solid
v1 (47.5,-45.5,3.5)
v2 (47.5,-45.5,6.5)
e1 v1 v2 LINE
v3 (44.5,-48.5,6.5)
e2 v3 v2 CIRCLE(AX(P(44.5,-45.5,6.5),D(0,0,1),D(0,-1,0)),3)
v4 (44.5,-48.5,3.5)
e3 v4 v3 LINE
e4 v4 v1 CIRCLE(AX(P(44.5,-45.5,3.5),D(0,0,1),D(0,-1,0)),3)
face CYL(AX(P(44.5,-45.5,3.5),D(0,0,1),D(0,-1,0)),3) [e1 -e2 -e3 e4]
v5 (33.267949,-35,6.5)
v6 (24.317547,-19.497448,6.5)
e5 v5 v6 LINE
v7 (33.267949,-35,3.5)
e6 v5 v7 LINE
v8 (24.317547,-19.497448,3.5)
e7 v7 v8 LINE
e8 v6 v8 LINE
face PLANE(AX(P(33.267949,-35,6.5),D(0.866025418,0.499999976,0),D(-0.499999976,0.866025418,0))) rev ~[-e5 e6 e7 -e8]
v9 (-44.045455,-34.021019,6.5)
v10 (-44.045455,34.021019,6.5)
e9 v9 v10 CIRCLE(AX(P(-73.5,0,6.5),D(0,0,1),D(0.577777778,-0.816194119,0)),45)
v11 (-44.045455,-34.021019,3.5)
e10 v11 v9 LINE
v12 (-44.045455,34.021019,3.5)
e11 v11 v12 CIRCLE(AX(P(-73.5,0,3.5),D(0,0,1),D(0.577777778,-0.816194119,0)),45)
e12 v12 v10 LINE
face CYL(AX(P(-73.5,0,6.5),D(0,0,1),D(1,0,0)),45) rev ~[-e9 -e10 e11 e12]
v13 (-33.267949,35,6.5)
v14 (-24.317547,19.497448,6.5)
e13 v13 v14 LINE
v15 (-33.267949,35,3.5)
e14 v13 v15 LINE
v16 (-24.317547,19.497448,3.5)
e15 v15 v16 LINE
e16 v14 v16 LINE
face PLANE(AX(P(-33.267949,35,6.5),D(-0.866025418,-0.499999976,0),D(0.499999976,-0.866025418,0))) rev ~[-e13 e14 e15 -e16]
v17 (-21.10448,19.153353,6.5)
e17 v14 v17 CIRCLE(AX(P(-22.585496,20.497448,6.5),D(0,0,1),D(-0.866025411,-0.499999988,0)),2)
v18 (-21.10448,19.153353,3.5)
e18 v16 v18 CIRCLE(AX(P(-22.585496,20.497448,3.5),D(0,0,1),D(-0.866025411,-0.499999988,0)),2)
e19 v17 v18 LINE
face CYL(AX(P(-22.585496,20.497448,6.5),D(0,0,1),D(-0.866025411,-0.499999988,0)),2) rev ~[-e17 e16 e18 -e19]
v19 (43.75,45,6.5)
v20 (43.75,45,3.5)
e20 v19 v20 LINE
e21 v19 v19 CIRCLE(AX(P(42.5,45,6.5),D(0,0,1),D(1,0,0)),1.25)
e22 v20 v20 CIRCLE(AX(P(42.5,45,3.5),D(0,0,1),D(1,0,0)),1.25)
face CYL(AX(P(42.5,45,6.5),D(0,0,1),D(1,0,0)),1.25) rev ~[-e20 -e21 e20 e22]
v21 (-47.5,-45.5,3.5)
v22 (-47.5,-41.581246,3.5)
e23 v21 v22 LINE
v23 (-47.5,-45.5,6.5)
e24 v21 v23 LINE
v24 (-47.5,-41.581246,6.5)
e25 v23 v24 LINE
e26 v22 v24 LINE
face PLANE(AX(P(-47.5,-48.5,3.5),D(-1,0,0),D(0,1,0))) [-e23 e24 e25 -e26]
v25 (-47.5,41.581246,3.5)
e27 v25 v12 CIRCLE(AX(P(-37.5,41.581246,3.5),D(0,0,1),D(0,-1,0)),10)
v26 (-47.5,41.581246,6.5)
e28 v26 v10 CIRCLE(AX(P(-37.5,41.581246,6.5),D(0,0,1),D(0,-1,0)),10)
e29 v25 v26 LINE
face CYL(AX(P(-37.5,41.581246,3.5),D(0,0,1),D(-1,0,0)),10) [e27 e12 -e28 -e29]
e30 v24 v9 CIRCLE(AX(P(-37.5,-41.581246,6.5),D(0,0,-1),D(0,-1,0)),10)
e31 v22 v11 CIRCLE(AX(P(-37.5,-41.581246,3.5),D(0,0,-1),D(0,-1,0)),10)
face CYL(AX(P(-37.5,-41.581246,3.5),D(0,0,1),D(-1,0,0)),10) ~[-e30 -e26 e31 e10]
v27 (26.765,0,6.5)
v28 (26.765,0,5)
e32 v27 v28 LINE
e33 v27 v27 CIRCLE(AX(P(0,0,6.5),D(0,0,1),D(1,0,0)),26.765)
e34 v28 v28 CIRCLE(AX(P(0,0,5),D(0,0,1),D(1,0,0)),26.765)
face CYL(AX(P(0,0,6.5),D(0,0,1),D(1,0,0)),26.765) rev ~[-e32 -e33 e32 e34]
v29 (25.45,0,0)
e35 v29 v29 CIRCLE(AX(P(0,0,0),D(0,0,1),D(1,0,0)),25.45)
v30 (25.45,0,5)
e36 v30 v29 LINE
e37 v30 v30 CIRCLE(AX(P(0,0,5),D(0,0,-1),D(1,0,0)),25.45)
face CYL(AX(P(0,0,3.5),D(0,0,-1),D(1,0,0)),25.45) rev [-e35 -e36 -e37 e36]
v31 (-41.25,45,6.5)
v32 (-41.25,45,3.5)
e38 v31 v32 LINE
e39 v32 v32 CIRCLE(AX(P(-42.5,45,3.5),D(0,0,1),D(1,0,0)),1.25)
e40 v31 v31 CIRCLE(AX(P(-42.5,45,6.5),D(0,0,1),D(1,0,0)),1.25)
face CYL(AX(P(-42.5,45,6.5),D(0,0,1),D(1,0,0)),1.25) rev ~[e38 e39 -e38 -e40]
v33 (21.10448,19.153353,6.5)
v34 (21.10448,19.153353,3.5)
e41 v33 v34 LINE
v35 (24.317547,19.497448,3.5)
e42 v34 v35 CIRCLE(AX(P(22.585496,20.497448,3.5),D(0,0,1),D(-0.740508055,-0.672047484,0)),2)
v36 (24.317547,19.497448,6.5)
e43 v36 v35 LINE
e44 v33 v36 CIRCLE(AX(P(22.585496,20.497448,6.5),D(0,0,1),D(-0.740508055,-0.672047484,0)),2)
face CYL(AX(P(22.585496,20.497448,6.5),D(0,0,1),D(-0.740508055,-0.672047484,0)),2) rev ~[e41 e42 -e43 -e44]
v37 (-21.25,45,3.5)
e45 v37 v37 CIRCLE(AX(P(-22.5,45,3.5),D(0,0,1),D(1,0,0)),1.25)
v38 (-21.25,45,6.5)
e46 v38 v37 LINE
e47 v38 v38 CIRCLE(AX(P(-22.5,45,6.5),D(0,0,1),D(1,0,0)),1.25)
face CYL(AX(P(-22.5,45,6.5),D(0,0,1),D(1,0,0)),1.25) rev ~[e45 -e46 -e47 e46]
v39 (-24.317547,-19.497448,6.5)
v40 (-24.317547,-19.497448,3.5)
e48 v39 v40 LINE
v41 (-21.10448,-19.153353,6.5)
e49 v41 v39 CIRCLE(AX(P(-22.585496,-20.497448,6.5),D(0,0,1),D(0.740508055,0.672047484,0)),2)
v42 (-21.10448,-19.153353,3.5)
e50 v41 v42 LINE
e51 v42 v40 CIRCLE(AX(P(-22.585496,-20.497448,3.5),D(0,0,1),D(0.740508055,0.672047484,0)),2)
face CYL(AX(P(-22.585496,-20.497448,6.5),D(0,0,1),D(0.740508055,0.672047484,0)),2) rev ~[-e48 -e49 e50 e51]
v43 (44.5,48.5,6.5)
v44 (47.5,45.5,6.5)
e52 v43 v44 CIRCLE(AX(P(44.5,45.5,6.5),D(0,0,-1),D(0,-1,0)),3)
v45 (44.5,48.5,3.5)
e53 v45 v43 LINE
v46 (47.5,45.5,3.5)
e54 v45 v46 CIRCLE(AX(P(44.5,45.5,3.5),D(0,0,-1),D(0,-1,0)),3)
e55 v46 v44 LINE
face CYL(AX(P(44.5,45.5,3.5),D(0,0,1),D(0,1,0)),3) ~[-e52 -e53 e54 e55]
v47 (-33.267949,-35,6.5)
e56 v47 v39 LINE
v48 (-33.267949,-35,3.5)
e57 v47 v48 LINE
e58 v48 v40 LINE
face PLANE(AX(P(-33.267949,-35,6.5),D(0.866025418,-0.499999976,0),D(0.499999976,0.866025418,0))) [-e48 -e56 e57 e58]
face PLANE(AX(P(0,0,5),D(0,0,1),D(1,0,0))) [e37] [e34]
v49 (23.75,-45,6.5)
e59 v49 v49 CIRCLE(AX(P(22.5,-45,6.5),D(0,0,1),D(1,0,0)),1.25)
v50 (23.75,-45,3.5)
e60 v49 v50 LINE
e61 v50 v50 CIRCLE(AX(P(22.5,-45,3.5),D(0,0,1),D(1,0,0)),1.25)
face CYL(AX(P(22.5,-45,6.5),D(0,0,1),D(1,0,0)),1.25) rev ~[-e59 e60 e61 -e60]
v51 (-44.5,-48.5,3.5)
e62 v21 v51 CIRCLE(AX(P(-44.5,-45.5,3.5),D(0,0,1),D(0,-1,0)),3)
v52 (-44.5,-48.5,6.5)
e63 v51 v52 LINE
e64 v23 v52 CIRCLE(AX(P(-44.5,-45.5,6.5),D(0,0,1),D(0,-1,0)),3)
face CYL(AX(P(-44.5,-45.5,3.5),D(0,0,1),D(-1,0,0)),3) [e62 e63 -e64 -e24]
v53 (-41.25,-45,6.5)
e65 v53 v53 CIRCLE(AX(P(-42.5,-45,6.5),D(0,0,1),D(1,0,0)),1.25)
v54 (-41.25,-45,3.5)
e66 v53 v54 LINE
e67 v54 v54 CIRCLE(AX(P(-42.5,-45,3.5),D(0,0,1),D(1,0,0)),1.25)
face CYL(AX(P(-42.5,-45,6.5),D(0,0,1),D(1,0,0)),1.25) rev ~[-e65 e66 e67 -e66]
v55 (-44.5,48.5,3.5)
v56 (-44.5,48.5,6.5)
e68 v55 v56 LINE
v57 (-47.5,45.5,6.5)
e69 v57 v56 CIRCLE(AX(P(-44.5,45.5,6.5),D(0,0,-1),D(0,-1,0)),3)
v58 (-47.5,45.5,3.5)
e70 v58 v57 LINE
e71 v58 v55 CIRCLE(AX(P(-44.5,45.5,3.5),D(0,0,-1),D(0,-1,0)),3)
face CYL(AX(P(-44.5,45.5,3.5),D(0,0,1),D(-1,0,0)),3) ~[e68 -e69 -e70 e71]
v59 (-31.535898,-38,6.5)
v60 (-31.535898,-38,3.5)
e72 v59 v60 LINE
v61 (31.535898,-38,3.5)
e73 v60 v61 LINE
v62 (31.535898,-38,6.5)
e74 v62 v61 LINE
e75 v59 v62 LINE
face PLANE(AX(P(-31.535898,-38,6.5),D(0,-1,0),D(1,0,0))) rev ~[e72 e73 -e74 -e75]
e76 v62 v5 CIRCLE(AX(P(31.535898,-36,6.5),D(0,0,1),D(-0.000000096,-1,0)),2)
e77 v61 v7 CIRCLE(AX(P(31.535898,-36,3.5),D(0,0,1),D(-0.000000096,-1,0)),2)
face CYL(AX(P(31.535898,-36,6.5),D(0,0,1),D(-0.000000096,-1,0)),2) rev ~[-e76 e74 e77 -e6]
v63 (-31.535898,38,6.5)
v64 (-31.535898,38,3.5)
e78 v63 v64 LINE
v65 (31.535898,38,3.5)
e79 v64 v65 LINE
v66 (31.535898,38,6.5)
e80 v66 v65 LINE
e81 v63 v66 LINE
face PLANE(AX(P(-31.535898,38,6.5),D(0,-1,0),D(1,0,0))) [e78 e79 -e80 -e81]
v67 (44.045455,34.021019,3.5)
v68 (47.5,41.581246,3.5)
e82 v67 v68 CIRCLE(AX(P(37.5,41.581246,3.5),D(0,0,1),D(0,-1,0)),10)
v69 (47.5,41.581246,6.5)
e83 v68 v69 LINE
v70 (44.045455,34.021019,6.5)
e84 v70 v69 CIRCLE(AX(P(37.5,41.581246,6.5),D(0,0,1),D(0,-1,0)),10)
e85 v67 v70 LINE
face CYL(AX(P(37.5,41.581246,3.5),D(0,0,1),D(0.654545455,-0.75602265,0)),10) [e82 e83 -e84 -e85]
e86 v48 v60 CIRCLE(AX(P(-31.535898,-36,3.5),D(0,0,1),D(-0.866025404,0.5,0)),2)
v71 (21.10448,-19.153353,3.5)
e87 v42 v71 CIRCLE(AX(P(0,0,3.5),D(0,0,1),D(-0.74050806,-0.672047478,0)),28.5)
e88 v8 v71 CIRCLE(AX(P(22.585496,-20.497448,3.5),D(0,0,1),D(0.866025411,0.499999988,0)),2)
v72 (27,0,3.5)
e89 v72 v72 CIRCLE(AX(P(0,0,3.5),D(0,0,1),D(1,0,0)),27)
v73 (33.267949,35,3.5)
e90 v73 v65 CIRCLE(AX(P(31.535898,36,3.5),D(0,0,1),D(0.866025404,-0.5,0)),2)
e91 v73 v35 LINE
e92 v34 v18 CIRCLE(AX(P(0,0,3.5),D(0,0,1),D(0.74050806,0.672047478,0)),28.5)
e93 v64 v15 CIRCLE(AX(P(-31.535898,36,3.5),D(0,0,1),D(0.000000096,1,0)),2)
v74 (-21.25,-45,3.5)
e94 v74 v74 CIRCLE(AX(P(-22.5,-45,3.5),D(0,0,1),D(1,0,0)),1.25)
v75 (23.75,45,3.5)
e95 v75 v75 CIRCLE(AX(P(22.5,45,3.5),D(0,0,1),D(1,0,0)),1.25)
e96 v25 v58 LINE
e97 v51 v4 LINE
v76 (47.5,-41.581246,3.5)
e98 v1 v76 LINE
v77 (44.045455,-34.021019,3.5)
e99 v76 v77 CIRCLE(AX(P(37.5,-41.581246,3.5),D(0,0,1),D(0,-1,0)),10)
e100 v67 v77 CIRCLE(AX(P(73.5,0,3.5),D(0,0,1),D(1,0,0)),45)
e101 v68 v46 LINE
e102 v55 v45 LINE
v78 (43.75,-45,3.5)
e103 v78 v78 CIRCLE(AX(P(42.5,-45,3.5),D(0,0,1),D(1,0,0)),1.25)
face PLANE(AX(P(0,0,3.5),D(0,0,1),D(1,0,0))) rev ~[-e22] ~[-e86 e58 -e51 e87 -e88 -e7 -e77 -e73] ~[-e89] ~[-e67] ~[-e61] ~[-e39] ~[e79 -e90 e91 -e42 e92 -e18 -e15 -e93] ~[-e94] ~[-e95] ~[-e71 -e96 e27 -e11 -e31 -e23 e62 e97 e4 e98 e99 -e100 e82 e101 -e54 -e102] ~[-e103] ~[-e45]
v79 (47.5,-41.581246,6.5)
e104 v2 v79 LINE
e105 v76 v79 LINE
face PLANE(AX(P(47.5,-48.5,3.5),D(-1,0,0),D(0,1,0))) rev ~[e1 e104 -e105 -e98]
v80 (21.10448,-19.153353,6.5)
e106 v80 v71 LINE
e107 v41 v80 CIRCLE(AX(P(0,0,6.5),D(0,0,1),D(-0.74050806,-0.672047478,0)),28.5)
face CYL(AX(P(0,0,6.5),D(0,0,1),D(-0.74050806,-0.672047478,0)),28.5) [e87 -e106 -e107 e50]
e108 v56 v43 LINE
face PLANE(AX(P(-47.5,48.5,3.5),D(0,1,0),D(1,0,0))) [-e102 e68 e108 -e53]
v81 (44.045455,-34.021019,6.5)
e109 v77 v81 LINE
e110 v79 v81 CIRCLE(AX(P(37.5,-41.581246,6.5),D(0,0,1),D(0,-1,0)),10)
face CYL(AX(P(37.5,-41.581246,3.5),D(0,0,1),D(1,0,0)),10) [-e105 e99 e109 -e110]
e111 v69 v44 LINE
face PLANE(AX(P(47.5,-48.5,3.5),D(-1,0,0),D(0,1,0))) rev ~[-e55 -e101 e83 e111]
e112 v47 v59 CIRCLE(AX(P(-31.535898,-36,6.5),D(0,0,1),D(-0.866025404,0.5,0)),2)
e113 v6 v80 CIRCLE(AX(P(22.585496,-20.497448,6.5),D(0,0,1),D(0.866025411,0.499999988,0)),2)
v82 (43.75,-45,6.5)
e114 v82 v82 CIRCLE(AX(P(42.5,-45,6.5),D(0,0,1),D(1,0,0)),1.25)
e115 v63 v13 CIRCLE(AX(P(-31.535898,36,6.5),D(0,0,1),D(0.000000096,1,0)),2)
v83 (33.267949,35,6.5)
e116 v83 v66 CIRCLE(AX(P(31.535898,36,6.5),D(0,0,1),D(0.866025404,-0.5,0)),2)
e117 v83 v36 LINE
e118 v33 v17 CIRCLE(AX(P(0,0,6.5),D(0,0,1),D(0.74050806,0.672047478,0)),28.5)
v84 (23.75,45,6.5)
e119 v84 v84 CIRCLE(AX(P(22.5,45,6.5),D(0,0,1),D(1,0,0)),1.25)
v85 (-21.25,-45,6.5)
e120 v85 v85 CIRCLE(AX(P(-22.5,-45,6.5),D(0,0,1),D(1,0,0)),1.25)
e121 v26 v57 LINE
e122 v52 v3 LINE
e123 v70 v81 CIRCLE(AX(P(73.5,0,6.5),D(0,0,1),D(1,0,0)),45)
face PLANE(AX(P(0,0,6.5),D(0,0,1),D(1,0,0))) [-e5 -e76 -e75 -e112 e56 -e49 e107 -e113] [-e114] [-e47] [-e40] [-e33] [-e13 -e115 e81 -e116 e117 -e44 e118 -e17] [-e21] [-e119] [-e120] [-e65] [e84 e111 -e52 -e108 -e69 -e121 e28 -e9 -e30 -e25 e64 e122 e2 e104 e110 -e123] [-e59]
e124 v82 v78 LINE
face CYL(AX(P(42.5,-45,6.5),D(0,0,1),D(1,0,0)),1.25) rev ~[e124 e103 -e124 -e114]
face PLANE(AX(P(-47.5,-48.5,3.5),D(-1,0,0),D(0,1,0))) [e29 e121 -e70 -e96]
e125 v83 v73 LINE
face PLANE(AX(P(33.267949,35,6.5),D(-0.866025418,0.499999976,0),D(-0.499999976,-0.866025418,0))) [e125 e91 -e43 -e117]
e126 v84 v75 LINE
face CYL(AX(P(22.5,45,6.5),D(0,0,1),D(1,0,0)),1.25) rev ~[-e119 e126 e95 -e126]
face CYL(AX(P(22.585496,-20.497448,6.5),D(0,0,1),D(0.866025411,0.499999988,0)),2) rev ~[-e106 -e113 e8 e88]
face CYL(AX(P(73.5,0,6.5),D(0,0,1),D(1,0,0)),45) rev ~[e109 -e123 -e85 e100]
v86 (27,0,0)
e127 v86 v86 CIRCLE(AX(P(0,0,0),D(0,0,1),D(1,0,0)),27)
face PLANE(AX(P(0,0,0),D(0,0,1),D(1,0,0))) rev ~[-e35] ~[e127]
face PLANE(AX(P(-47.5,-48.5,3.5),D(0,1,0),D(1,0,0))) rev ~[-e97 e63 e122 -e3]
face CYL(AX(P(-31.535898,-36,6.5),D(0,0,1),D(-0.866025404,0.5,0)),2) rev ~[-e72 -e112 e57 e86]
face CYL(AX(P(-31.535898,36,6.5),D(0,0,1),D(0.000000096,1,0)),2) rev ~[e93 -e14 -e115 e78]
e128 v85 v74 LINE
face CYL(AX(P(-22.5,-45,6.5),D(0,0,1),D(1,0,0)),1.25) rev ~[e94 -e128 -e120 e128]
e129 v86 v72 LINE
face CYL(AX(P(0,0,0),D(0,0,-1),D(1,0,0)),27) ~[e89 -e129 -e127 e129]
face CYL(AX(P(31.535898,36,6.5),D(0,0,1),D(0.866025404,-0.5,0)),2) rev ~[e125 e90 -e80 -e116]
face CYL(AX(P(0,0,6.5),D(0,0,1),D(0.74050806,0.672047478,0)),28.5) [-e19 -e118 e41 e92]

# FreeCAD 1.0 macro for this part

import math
import FreeCAD as App
import Part
import Sketcher

V = App.Vector
Q = App.Units.Quantity


def edges_at(feature, points):
    """Names of the edges that pass closest to the given points."""
    edges = feature.Shape.Edges
    near = lambda p: min(range(len(edges)), key=lambda i: edges[i].distToShape(Part.Vertex(*p))[0])
    return sorted({f"Edge{near(p) + 1}" for p in points})

doc = App.newDocument("Part")
body = doc.addObject("PartDesign::Body", "Body")

# Sketch on XY plane
sketch1 = body.newObject("Sketcher::SketchObject", "Sketch")
sketch1.AttachmentSupport = (doc.getObject("XY_Plane"), [""])
sketch1.MapMode = "FlatFace"
sketch1.addGeometry([
    Part.Circle(V(0, 0, 0), V(0, 0, 1), 27),
    Part.Circle(V(0, 0, 0), V(0, 0, 1), 25),
], False)
sketch1.addConstraint([
    Sketcher.Constraint("Coincident", 0, 3, -1, 1),
    Sketcher.Constraint("Coincident", 1, 3, -1, 1),
    Sketcher.Constraint("Diameter", 0, 54.0),
    Sketcher.Constraint("Diameter", 1, 50.9),
])
pad1 = body.newObject("PartDesign::Pad", "Pad")
pad1.Profile = sketch1
pad1.Length = 3.5

# Sketch on XY plane
sketch2 = body.newObject("Sketcher::SketchObject", "Sketch001")
sketch2.AttachmentSupport = (doc.getObject("XY_Plane"), [""])
sketch2.MapMode = "FlatFace"
sketch2.AttachmentOffset = App.Placement(V(0, 0, 3.5), App.Rotation())
sketch2.addGeometry([
    Part.LineSegment(V(-48, 48, 0), V(-48, -48, 0)),  # 0
    Part.LineSegment(V(-48, -48, 0), V(48, -48, 0)),  # 1
    Part.LineSegment(V(48, -48, 0), V(48, 48, 0)),  # 2
    Part.LineSegment(V(48, 48, 0), V(-48, 48, 0)),  # 3
    Part.Circle(V(0, 0, 0), V(0, 0, 1), 25),  # 4
], False)
sketch2.addConstraint([
    Sketcher.Constraint("Coincident", 0, 2, 1, 1),
    Sketcher.Constraint("Coincident", 1, 2, 2, 1),
    Sketcher.Constraint("Coincident", 2, 2, 3, 1),
    Sketcher.Constraint("Coincident", 3, 2, 0, 1),
    Sketcher.Constraint("Vertical", 0),
    Sketcher.Constraint("Horizontal", 1),
    Sketcher.Constraint("Vertical", 2),
    Sketcher.Constraint("Horizontal", 3),
    Sketcher.Constraint("Coincident", 4, 3, -1, 1),
    Sketcher.Constraint("Symmetric", 0, 2, 2, 2, -1, 1),
    Sketcher.Constraint("Diameter", 4, 50.9),
    Sketcher.Constraint("DistanceX", 1, 1, 1, 2, 95.0),
    Sketcher.Constraint("DistanceY", 0, 2, 0, 1, 97.0),
])
pad2 = body.newObject("PartDesign::Pad", "Pad001")
pad2.Profile = sketch2
pad2.Length = 3

# Sketch on XY plane
sketch3 = body.newObject("Sketcher::SketchObject", "Sketch002")
sketch3.AttachmentSupport = (doc.getObject("XY_Plane"), [""])
sketch3.MapMode = "FlatFace"
sketch3.AttachmentOffset = App.Placement(V(0, 0, 6.5), App.Rotation())
sketch3.addGeometry(Part.Circle(V(0, 0, 0), V(0, 0, 1), 27), False)
sketch3.addConstraint([
    Sketcher.Constraint("Coincident", 0, 3, -1, 1),
    Sketcher.Constraint("Diameter", 0, 53.53),
])
pocket1 = body.newObject("PartDesign::Pocket", "Pocket")
pocket1.Profile = sketch3
pocket1.Length = 1.5

# Sketch on XY plane
sketch4 = body.newObject("Sketcher::SketchObject", "Sketch003")
sketch4.AttachmentSupport = (doc.getObject("XY_Plane"), [""])
sketch4.MapMode = "FlatFace"
sketch4.AttachmentOffset = App.Placement(V(0, 0, 6.5), App.Rotation())
sketch4.addGeometry([
    Part.Circle(V(-42.5, 45, 0), V(0, 0, 1), 1.2),  # 0
    Part.Circle(V(42.5, 45, 0), V(0, 0, 1), 1.2),  # 1
    Part.Circle(V(42.5, -45, 0), V(0, 0, 1), 1.2),  # 2
    Part.Circle(V(-42.5, -45, 0), V(0, 0, 1), 1.2),  # 3
    Part.Circle(V(-22.5, 45, 0), V(0, 0, 1), 1.2),  # 4
    Part.Circle(V(22.5, 45, 0), V(0, 0, 1), 1.2),  # 5
    Part.Circle(V(-22.5, -45, 0), V(0, 0, 1), 1.2),  # 6
    Part.Circle(V(22.5, -45, 0), V(0, 0, 1), 1.2),  # 7
], False)
sketch4.addConstraint([
    Sketcher.Constraint("Equal", 0, 1),
    Sketcher.Constraint("Equal", 1, 2),
    Sketcher.Constraint("Equal", 2, 3),
    Sketcher.Constraint("Equal", 3, 4),
    Sketcher.Constraint("Equal", 4, 5),
    Sketcher.Constraint("Equal", 5, 6),
    Sketcher.Constraint("Equal", 6, 7),
    Sketcher.Constraint("Symmetric", 0, 3, 2, 3, -1, 1),
    Sketcher.Constraint("Symmetric", 1, 3, 3, 3, -1, 1),
    Sketcher.Constraint("Symmetric", 5, 3, 6, 3, -1, 1),
    Sketcher.Constraint("Symmetric", 4, 3, 7, 3, -1, 1),
    Sketcher.Constraint("Symmetric", 0, 3, 1, 3, -2),
    Sketcher.Constraint("Symmetric", 4, 3, 5, 3, -2),
    Sketcher.Constraint("Horizontal", 1, 3, 4, 3),
    Sketcher.Constraint("Diameter", 0, 2.5),
    Sketcher.Constraint("DistanceY", -1, 1, 0, 3, 45.0),
    Sketcher.Constraint("DistanceX", 0, 3, 1, 3, 85.0),
    Sketcher.Constraint("DistanceX", 0, 3, 4, 3, 20.0),
])
pocket2 = body.newObject("PartDesign::Pocket", "Pocket001")
pocket2.Profile = sketch4
pocket2.Type = "ThroughAll"

# Sketch on XY plane
sketch5 = body.newObject("Sketcher::SketchObject", "Sketch004")
sketch5.AttachmentSupport = (doc.getObject("XY_Plane"), [""])
sketch5.MapMode = "FlatFace"
sketch5.AttachmentOffset = App.Placement(V(0, 0, 6.5), App.Rotation())
sketch5.addGeometry([
    Part.Circle(V(-73.5, 0, 0), V(0, 0, 1), 45),  # 0
    Part.Circle(V(73.5, 0, 0), V(0, 0, 1), 45),  # 1
    Part.LineSegment(V(31.5, 38, 0), V(-31.5, 38, 0)),  # 2
    Part.ArcOfCircle(Part.Circle(V(-31.5, 36, 0), V(0, 0, 1), 2), math.radians(90), math.radians(210)),  # 3
    Part.LineSegment(V(-33.3, 35, 0), V(-24.3, 19.5, 0)),  # 4
    Part.ArcOfCircle(Part.Circle(V(-22.6, 20.5, 0), V(0, 0, 1), 2), math.radians(-150), math.radians(-42)),  # 5
    Part.ArcOfCircle(Part.Circle(V(0, 0, 0), V(0, 0, 1), 28.5), math.radians(42), math.radians(138)),  # 6
    Part.ArcOfCircle(Part.Circle(V(22.6, 20.5, 0), V(0, 0, 1), 2), math.radians(-138), math.radians(-30)),  # 7
    Part.LineSegment(V(24.3, 19.5, 0), V(33.3, 35, 0)),  # 8
    Part.ArcOfCircle(Part.Circle(V(31.5, 36, 0), V(0, 0, 1), 2), math.radians(-30), math.radians(90)),  # 9
    Part.LineSegment(V(-31.5, -38, 0), V(31.5, -38, 0)),  # 10
    Part.ArcOfCircle(Part.Circle(V(31.5, -36, 0), V(0, 0, 1), 2), math.radians(-90), math.radians(30)),  # 11
    Part.LineSegment(V(33.3, -35, 0), V(24.3, -19.5, 0)),  # 12
    Part.ArcOfCircle(Part.Circle(V(22.6, -20.5, 0), V(0, 0, 1), 2), math.radians(30), math.radians(138)),  # 13
    Part.ArcOfCircle(Part.Circle(V(0, 0, 0), V(0, 0, 1), 28.5), math.radians(-138), math.radians(-42)),  # 14
    Part.ArcOfCircle(Part.Circle(V(-22.6, -20.5, 0), V(0, 0, 1), 2), math.radians(42), math.radians(150)),  # 15
    Part.LineSegment(V(-24.3, -19.5, 0), V(-33.3, -35, 0)),  # 16
    Part.ArcOfCircle(Part.Circle(V(-31.5, -36, 0), V(0, 0, 1), 2), math.radians(150), math.radians(270)),  # 17
], False)
sketch5.addConstraint([
    Sketcher.Constraint("Tangent", 2, 2, 3, 1),
    Sketcher.Constraint("Tangent", 3, 2, 4, 1),
    Sketcher.Constraint("Tangent", 4, 2, 5, 1),
    Sketcher.Constraint("Tangent", 5, 2, 6, 2),
    Sketcher.Constraint("Tangent", 6, 1, 7, 1),
    Sketcher.Constraint("Tangent", 7, 2, 8, 1),
    Sketcher.Constraint("Tangent", 8, 2, 9, 1),
    Sketcher.Constraint("Tangent", 9, 2, 2, 1),
    Sketcher.Constraint("Tangent", 10, 2, 11, 1),
    Sketcher.Constraint("Tangent", 11, 2, 12, 1),
    Sketcher.Constraint("Tangent", 12, 2, 13, 1),
    Sketcher.Constraint("Tangent", 13, 2, 14, 2),
    Sketcher.Constraint("Tangent", 14, 1, 15, 1),
    Sketcher.Constraint("Tangent", 15, 2, 16, 1),
    Sketcher.Constraint("Tangent", 16, 2, 17, 1),
    Sketcher.Constraint("Tangent", 17, 2, 10, 1),
    Sketcher.Constraint("Horizontal", 2),
    Sketcher.Constraint("Horizontal", 10),
    Sketcher.Constraint("Coincident", 6, 3, -1, 1),
    Sketcher.Constraint("Coincident", 14, 3, -1, 1),
    Sketcher.Constraint("Equal", 0, 1),
    Sketcher.Constraint("Equal", 3, 5),
    Sketcher.Constraint("Equal", 5, 7),
    Sketcher.Constraint("Equal", 7, 9),
    Sketcher.Constraint("Equal", 9, 11),
    Sketcher.Constraint("Equal", 11, 13),
    Sketcher.Constraint("Equal", 6, 14),
    Sketcher.Constraint("Equal", 13, 15),
    Sketcher.Constraint("Equal", 15, 17),
    Sketcher.Constraint("Symmetric", 0, 3, 1, 3, -1, 1),
    Sketcher.Constraint("Symmetric", 3, 3, 11, 3, -1, 1),
    Sketcher.Constraint("Symmetric", 7, 2, 15, 2, -1, 1),
    Sketcher.Constraint("Symmetric", 4, 2, 7, 2, -2),
    Sketcher.Constraint("PointOnObject", 0, 3, -1),
    Sketcher.Constraint("Parallel", 4, 12),
    Sketcher.Constraint("Diameter", 0, 90.0),
    Sketcher.Constraint("Radius", 3, 2.0),
    Sketcher.Constraint("Radius", 6, 28.5),
    Sketcher.Constraint("Angle", 4, Q("-60.000002 deg")),
    Sketcher.Constraint("DistanceY", -1, 1, 3, 3, 36.0),
    Sketcher.Constraint("DistanceX", 0, 3, 1, 3, 147.0),
    Sketcher.Constraint("DistanceX", 3, 3, -1, 1, 31.535898),
])
pocket3 = body.newObject("PartDesign::Pocket", "Pocket002")
pocket3.Profile = sketch5
pocket3.Type = "ThroughAll"
doc.recompute()

fillet = body.newObject("PartDesign::Fillet", "Fillet")
fillet.Base = (pocket3, edges_at(pocket3, [
    (47.5, -36.729, 5),
    (47.5, 36.729, 5),
    (-47.5, -36.729, 5),
    (-47.5, 36.729, 5),
]))
fillet.Radius = 10
doc.recompute()

fillet2 = body.newObject("PartDesign::Fillet", "Fillet001")
fillet2.Base = (fillet, edges_at(fillet, [
    (-47.5, 48.5, 5),
    (-47.5, -48.5, 5),
    (47.5, 48.5, 5),
    (47.5, -48.5, 5),
]))
fillet2.Radius = 3

doc.recompute()
